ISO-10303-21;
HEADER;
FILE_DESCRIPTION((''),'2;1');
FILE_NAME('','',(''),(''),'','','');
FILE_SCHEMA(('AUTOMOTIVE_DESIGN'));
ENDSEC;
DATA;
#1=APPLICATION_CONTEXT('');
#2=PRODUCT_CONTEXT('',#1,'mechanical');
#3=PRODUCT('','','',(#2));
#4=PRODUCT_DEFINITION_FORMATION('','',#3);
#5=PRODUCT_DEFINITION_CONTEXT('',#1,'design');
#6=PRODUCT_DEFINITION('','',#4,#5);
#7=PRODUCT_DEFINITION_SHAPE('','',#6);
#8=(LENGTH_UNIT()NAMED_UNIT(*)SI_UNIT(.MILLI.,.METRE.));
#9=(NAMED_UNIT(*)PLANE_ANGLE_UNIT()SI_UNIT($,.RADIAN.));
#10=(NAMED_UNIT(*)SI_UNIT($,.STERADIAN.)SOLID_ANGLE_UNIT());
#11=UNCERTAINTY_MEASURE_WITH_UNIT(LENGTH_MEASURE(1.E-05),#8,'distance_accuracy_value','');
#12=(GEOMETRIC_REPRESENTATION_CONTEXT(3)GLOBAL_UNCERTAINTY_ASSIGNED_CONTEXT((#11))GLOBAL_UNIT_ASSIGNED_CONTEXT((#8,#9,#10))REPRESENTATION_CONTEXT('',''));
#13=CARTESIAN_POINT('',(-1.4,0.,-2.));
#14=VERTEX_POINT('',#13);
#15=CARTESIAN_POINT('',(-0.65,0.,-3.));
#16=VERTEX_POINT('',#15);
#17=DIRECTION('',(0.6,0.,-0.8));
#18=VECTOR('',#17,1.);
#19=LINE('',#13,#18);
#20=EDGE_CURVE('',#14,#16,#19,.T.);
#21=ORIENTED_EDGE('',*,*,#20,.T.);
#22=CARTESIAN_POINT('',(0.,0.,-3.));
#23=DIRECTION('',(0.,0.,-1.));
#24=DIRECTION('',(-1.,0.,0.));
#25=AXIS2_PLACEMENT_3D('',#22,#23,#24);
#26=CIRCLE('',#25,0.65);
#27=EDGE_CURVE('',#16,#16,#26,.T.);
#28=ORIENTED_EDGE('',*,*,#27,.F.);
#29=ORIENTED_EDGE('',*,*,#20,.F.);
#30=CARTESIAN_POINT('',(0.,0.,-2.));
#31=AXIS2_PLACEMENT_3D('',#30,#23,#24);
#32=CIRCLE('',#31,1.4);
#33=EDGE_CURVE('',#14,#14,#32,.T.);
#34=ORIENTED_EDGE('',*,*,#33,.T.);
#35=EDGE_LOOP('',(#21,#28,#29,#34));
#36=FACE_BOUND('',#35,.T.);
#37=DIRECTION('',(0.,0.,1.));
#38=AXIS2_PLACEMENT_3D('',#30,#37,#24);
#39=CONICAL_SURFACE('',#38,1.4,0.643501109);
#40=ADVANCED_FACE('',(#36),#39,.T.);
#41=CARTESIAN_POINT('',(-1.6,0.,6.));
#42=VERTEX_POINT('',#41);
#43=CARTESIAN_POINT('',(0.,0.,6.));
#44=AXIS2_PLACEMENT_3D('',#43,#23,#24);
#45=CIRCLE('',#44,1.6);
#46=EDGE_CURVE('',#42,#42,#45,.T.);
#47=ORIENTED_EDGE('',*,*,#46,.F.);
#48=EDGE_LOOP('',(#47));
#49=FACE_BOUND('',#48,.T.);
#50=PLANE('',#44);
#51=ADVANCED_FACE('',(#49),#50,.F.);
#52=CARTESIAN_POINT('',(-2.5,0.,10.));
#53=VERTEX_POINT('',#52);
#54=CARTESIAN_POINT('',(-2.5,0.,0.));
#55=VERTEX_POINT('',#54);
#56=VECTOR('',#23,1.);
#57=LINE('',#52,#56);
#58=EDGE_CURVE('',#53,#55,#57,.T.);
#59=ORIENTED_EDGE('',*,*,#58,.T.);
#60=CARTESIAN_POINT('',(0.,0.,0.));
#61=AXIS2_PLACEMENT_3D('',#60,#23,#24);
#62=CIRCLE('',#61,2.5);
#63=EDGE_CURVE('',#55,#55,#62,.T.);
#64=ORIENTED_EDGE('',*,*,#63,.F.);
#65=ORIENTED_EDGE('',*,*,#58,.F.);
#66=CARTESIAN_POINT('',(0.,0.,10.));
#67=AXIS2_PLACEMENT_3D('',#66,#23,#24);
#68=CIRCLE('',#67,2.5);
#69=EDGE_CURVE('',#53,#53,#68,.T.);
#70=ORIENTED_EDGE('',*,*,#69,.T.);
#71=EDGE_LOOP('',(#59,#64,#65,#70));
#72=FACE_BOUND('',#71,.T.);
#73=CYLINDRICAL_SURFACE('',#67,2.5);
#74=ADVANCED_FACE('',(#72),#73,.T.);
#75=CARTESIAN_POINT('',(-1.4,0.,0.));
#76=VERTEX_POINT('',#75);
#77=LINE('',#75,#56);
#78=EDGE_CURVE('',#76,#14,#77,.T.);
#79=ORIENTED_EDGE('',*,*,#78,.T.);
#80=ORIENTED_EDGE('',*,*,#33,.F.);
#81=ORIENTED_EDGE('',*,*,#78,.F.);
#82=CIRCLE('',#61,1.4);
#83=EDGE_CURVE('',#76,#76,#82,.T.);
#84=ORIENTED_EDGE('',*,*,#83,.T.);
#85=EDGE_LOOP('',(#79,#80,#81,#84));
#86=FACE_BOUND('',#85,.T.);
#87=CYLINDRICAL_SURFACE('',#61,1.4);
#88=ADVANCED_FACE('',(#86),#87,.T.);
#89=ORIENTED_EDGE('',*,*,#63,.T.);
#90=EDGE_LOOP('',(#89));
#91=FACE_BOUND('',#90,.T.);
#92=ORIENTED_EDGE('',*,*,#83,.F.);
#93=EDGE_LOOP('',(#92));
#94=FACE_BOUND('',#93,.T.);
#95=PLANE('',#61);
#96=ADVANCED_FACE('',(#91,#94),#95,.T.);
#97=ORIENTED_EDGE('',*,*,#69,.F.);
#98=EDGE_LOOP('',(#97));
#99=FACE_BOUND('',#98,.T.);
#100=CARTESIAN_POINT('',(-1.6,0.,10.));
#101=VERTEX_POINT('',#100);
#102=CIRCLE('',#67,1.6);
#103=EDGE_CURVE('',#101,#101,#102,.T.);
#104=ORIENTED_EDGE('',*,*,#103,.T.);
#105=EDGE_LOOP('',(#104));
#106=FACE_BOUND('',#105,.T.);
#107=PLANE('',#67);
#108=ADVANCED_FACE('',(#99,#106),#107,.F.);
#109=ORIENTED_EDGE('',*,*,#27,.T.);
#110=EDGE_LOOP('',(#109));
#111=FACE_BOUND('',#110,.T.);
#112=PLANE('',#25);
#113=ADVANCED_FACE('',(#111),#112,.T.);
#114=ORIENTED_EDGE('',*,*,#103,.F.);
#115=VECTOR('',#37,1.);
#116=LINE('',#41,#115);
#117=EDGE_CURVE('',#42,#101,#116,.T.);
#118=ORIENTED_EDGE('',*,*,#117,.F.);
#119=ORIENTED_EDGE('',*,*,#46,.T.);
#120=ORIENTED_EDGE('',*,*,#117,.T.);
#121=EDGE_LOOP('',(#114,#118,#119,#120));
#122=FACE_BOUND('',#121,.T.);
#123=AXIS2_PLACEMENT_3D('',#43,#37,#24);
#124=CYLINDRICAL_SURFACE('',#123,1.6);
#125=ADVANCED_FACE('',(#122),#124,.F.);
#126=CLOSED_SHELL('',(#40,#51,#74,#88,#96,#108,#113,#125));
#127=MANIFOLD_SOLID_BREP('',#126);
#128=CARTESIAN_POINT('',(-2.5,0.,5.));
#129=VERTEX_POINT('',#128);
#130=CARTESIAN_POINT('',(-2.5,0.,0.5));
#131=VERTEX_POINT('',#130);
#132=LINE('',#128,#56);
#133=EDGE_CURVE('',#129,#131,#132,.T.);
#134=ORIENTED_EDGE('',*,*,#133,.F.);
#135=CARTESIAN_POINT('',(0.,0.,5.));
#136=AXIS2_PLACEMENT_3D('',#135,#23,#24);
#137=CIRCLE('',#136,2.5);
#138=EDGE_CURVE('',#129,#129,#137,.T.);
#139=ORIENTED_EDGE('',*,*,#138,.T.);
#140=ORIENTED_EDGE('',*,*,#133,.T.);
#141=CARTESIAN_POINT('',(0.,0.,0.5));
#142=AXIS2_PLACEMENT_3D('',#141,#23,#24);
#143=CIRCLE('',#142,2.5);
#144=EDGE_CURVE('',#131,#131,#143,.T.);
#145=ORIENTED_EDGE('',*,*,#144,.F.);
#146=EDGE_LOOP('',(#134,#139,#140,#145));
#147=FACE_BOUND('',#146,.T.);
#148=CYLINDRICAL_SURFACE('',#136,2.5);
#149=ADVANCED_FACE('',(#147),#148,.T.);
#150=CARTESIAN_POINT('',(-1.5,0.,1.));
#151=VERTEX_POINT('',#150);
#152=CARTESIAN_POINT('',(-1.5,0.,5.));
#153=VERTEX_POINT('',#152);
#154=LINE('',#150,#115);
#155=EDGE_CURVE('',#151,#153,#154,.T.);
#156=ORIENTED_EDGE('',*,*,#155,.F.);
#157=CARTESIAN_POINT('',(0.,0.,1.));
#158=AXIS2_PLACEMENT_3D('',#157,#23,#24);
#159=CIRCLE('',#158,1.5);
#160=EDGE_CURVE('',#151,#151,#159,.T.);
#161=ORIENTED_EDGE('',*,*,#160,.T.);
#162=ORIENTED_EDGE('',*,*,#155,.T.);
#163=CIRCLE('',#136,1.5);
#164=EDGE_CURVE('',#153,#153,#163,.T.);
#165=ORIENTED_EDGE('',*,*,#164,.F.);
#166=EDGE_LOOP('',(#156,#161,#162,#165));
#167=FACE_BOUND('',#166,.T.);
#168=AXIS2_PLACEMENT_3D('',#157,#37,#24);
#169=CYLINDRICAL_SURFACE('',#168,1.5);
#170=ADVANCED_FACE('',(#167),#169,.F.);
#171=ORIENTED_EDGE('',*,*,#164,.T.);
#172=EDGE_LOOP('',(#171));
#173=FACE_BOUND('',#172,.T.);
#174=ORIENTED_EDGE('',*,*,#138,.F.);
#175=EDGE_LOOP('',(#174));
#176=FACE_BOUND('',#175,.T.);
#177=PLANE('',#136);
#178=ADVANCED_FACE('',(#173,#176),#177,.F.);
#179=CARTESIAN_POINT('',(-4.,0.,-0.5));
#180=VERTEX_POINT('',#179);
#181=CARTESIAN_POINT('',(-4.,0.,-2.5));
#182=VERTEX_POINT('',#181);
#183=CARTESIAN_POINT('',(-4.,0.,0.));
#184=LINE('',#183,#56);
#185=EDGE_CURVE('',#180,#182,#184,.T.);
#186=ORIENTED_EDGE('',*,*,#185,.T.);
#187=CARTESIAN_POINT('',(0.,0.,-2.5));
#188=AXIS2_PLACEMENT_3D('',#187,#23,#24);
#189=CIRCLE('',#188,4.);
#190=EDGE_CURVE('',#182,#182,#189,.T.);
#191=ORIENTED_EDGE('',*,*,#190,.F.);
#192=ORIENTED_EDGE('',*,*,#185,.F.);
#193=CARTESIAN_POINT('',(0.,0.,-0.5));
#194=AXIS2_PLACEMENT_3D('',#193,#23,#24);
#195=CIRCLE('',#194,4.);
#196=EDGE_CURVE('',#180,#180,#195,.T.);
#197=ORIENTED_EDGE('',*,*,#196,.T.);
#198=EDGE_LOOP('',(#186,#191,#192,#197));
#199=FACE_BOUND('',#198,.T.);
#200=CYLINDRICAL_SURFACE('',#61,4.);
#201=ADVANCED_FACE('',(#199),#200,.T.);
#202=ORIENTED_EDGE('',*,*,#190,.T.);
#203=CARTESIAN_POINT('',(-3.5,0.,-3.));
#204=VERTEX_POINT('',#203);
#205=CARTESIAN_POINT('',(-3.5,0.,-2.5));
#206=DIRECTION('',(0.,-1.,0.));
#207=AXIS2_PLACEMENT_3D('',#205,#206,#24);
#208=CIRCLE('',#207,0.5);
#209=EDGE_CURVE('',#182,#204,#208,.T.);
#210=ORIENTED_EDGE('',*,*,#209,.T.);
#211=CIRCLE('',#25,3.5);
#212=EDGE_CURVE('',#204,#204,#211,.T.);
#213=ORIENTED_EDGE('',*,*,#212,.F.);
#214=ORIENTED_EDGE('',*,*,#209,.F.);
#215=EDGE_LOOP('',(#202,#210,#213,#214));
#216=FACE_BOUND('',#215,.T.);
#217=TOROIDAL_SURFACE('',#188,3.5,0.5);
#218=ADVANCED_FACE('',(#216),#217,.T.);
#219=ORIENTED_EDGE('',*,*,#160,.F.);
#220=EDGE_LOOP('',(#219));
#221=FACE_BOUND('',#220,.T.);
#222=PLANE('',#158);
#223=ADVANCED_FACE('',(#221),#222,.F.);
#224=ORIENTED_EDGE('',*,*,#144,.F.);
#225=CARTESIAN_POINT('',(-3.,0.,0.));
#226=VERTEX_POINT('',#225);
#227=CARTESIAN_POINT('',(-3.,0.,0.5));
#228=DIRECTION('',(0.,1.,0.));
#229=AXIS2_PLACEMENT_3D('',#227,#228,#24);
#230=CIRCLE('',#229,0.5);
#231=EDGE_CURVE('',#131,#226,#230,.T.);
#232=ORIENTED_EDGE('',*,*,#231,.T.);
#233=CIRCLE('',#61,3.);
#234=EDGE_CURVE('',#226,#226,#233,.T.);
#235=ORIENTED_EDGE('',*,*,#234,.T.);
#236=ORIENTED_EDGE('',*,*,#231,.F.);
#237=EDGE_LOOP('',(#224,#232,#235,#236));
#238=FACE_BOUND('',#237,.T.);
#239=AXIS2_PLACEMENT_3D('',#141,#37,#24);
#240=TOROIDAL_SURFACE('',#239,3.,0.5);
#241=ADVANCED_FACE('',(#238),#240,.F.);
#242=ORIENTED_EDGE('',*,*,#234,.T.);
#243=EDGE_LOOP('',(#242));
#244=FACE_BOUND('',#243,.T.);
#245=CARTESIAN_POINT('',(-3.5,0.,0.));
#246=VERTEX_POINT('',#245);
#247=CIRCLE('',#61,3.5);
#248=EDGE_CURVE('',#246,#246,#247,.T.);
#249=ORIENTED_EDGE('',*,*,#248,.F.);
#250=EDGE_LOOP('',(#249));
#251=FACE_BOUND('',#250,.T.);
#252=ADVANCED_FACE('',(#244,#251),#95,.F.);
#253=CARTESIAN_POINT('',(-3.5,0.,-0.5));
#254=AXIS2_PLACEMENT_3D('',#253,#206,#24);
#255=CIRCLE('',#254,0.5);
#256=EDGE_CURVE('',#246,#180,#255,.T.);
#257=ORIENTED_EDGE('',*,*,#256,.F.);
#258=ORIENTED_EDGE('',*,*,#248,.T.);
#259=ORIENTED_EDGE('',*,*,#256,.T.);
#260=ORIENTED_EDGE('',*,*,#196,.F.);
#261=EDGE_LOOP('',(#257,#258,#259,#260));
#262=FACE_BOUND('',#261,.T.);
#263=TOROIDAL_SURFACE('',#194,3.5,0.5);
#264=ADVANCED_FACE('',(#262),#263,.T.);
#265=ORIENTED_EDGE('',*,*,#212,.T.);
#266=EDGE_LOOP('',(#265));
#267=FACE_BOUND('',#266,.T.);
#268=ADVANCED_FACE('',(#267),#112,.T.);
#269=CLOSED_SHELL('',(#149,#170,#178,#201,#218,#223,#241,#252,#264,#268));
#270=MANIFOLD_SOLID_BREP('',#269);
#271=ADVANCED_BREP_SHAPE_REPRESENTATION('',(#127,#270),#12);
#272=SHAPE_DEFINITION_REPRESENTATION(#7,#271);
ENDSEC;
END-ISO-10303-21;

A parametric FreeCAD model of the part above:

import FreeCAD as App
import Part
import Sketcher

V = App.Vector
Q = App.Units.Quantity


def edges_at(feature, points):
    """Names of the edges that pass closest to the given points."""
    edges = feature.Shape.Edges
    near = lambda p: min(range(len(edges)), key=lambda i: edges[i].distToShape(Part.Vertex(*p))[0])
    return sorted({f"Edge{near(p) + 1}" for p in points})

doc = App.newDocument("Part")
params = doc.addObject("Spreadsheet::Sheet", "Params")
for row, (alias, value) in enumerate([
    ("sketch1_height", "4 mm"),
    ("sketch1_height2", "10 mm"),
    ("sketch1_height3", "3 mm"),
    ("sketch1_width", "0.9 mm"),
    ("sketch1_width2", "1.1 mm"),
    ("revolution_angle", "360 deg"),
    ("chamfer_size", "1 mm"),
    ("chamfer_size2", "0.75 mm"),
    ("sketch2_width", "1 mm"),
    ("sketch2_width2", "4 mm"),
    ("sketch2_height", "5 mm"),
    ("revolution2_angle", "360 deg"),
    ("fillet_radius", "0.5 mm"),
], start=1):
    params.set(f"A{row}", alias)
    params.set(f"B{row}", "=" + value)
    params.setAlias(f"B{row}", alias)

body = doc.addObject("PartDesign::Body", "Body")

# Sketch on XZ plane
sketch1 = body.newObject("Sketcher::SketchObject", "Sketch")
sketch1.AttachmentSupport = (doc.getObject("XZ_Plane"), [""])
sketch1.MapMode = "FlatFace"
sketch1.addGeometry(Part.LineSegment(V(-1.6, 6, 0), V(-1.6, 10, 0)), False)
sketch1.addGeometry(Part.LineSegment(V(-1.6, 10, 0), V(-2.5, 10, 0)), False)
sketch1.addGeometry(Part.LineSegment(V(-2.5, 10, 0), V(-2.5, 0, 0)), False)
sketch1.addGeometry(Part.LineSegment(V(-2.5, 0, 0), V(-1.4, 0, 0)), False)
sketch1.addGeometry(Part.LineSegment(V(-1.4, 0, 0), V(-1.4, -3, 0)), False)
sketch1.addGeometry(Part.LineSegment(V(-1.4, -3, 0), V(0, -3, 0)), False)
sketch1.addGeometry(Part.LineSegment(V(0, -3, 0), V(0, 6, 0)), False)
sketch1.addGeometry(Part.LineSegment(V(0, 6, 0), V(-1.6, 6, 0)), False)
sketch1.addConstraint(Sketcher.Constraint("Coincident", 0, 2, 1, 1))
sketch1.addConstraint(Sketcher.Constraint("Coincident", 1, 2, 2, 1))
sketch1.addConstraint(Sketcher.Constraint("Coincident", 2, 2, 3, 1))
sketch1.addConstraint(Sketcher.Constraint("Coincident", 3, 2, 4, 1))
sketch1.addConstraint(Sketcher.Constraint("Coincident", 4, 2, 5, 1))
sketch1.addConstraint(Sketcher.Constraint("Coincident", 5, 2, 6, 1))
sketch1.addConstraint(Sketcher.Constraint("Coincident", 6, 2, 7, 1))
sketch1.addConstraint(Sketcher.Constraint("Coincident", 7, 2, 0, 1))
sketch1.addConstraint(Sketcher.Constraint("Vertical", 0))
sketch1.addConstraint(Sketcher.Constraint("Horizontal", 1))
sketch1.addConstraint(Sketcher.Constraint("Vertical", 2))
sketch1.addConstraint(Sketcher.Constraint("Horizontal", 3))
sketch1.addConstraint(Sketcher.Constraint("Vertical", 4))
sketch1.addConstraint(Sketcher.Constraint("Horizontal", 5))
sketch1.addConstraint(Sketcher.Constraint("Vertical", 6))
sketch1.addConstraint(Sketcher.Constraint("Horizontal", 7))
sketch1.addConstraint(Sketcher.Constraint("PointOnObject", 2, 2, -1))
sketch1.addConstraint(Sketcher.Constraint("PointOnObject", 5, 2, -2))
sketch1.addConstraint(Sketcher.Constraint("DistanceY", 0, 1, 0, 2, Q("4 mm")))
sketch1.addConstraint(Sketcher.Constraint("DistanceY", 2, 2, 2, 1, Q("10 mm")))
sketch1.addConstraint(Sketcher.Constraint("DistanceY", 4, 2, 4, 1, Q("3 mm")))
sketch1.addConstraint(Sketcher.Constraint("DistanceX", 1, 2, 1, 1, Q("0.9 mm")))
sketch1.addConstraint(Sketcher.Constraint("DistanceX", 3, 1, 3, 2, Q("1.1 mm")))
sketch1.addConstraint(Sketcher.Constraint("DistanceX", 5, 1, 5, 2, Q("1.4 mm")))
sketch1.setExpression("Constraints[18]", "Params.sketch1_height")
sketch1.setExpression("Constraints[19]", "Params.sketch1_height2")
sketch1.setExpression("Constraints[20]", "Params.sketch1_height3")
sketch1.setExpression("Constraints[21]", "Params.sketch1_width")
sketch1.setExpression("Constraints[22]", "Params.sketch1_width2")
revolution = body.newObject("PartDesign::Revolution", "Revolution")
revolution.Profile = sketch1
revolution.ReferenceAxis = (sketch1, ["V_Axis"])
revolution.setExpression("Angle", "Params.revolution_angle")
doc.recompute()

chamfer = body.newObject("PartDesign::Chamfer", "Chamfer")
chamfer.Base = (revolution, edges_at(revolution, [(1.4, 0, -3)]))
chamfer.ChamferType = "Two distances"
chamfer.setExpression("Size", "Params.chamfer_size")
chamfer.setExpression("Size2", "Params.chamfer_size2")
body2 = doc.addObject("PartDesign::Body", "Body001")

# Sketch on XZ plane
sketch2 = body2.newObject("Sketcher::SketchObject", "Sketch001")
sketch2.AttachmentSupport = (doc.getObject("XZ_Plane001"), [""])
sketch2.MapMode = "FlatFace"
sketch2.addGeometry(Part.LineSegment(V(-1.5, 1, 0), V(-1.5, 5, 0)), False)
sketch2.addGeometry(Part.LineSegment(V(-1.5, 5, 0), V(-2.5, 5, 0)), False)
sketch2.addGeometry(Part.LineSegment(V(-2.5, 5, 0), V(-2.5, 0, 0)), False)
sketch2.addGeometry(Part.LineSegment(V(-2.5, 0, 0), V(-4, 0, 0)), False)
sketch2.addGeometry(Part.LineSegment(V(-4, 0, 0), V(-4, -3, 0)), False)
sketch2.addGeometry(Part.LineSegment(V(-4, -3, 0), V(0, -3, 0)), False)
sketch2.addGeometry(Part.LineSegment(V(0, -3, 0), V(0, 1, 0)), False)
sketch2.addGeometry(Part.LineSegment(V(0, 1, 0), V(-1.5, 1, 0)), False)
sketch2.addConstraint(Sketcher.Constraint("Coincident", 0, 2, 1, 1))
sketch2.addConstraint(Sketcher.Constraint("Coincident", 1, 2, 2, 1))
sketch2.addConstraint(Sketcher.Constraint("Coincident", 2, 2, 3, 1))
sketch2.addConstraint(Sketcher.Constraint("Coincident", 3, 2, 4, 1))
sketch2.addConstraint(Sketcher.Constraint("Coincident", 4, 2, 5, 1))
sketch2.addConstraint(Sketcher.Constraint("Coincident", 5, 2, 6, 1))
sketch2.addConstraint(Sketcher.Constraint("Coincident", 6, 2, 7, 1))
sketch2.addConstraint(Sketcher.Constraint("Coincident", 7, 2, 0, 1))
sketch2.addConstraint(Sketcher.Constraint("Vertical", 0))
sketch2.addConstraint(Sketcher.Constraint("Horizontal", 1))
sketch2.addConstraint(Sketcher.Constraint("Vertical", 2))
sketch2.addConstraint(Sketcher.Constraint("Horizontal", 3))
sketch2.addConstraint(Sketcher.Constraint("Vertical", 4))
sketch2.addConstraint(Sketcher.Constraint("Horizontal", 5))
sketch2.addConstraint(Sketcher.Constraint("Vertical", 6))
sketch2.addConstraint(Sketcher.Constraint("Horizontal", 7))
sketch2.addConstraint(Sketcher.Constraint("PointOnObject", 2, 2, -1))
sketch2.addConstraint(Sketcher.Constraint("PointOnObject", 5, 2, -2))
sketch2.addConstraint(Sketcher.Constraint("Equal", 3, 7))
sketch2.addConstraint(Sketcher.Constraint("Equal", 5, 0))
sketch2.addConstraint(Sketcher.Constraint("Equal", 0, 6))
sketch2.addConstraint(Sketcher.Constraint("DistanceX", 1, 2, 1, 1, Q("1 mm")))
sketch2.addConstraint(Sketcher.Constraint("DistanceX", 5, 1, 5, 2, Q("4 mm")))
sketch2.addConstraint(Sketcher.Constraint("DistanceY", 2, 2, 2, 1, Q("5 mm")))
sketch2.setExpression("Constraints[21]", "Params.sketch2_width")
sketch2.setExpression("Constraints[22]", "Params.sketch2_width2")
sketch2.setExpression("Constraints[23]", "Params.sketch2_height")
revolution2 = body2.newObject("PartDesign::Revolution", "Revolution001")
revolution2.Profile = sketch2
revolution2.ReferenceAxis = (sketch2, ["V_Axis"])
revolution2.setExpression("Angle", "Params.revolution2_angle")
doc.recompute()

fillet = body2.newObject("PartDesign::Fillet", "Fillet")
fillet.Base = (revolution2, edges_at(revolution2, [(4, 0, -3), (4, 0, 0), (2.5, 0, 0)]))
fillet.setExpression("Radius", "Params.fillet_radius")

doc.recompute()
